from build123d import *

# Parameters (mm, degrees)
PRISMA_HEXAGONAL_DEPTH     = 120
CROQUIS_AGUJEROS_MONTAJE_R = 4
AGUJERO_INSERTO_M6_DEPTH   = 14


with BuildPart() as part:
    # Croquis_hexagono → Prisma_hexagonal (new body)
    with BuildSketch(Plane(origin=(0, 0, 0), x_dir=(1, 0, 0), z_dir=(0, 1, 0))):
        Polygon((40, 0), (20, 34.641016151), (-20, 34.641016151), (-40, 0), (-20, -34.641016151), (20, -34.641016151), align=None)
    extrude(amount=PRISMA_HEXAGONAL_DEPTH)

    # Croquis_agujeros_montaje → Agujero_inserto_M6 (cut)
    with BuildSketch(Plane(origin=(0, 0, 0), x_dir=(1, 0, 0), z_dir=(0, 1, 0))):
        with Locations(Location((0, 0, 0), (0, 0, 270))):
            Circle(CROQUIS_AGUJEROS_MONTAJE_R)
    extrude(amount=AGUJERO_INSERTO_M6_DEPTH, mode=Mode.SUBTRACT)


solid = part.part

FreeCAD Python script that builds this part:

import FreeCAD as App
import Part
import Sketcher
Q = App.Units.Quantity

doc = App.newDocument("Part")
body = doc.addObject("PartDesign::Body", "Body")

# Sketch on XZ plane
sketch1 = body.newObject("Sketcher::SketchObject", "Sketch")
sketch1.AttachmentSupport = (doc.getObject("XZ_Plane"), [""])
sketch1.MapMode = "FlatFace"
sketch1.addGeometry(Part.LineSegment(App.Vector(40, 0, 0), App.Vector(20, -35, 0)), False)
sketch1.addGeometry(Part.LineSegment(App.Vector(20, -35, 0), App.Vector(-20, -35, 0)), False)
sketch1.addGeometry(Part.LineSegment(App.Vector(-20, -35, 0), App.Vector(-40, 0, 0)), False)
sketch1.addGeometry(Part.LineSegment(App.Vector(-40, 0, 0), App.Vector(-20, 35, 0)), False)
sketch1.addGeometry(Part.LineSegment(App.Vector(-20, 35, 0), App.Vector(20, 35, 0)), False)
sketch1.addGeometry(Part.LineSegment(App.Vector(20, 35, 0), App.Vector(40, 0, 0)), False)
sketch1.addConstraint(Sketcher.Constraint("Coincident", 0, 2, 1, 1))
sketch1.addConstraint(Sketcher.Constraint("Coincident", 1, 2, 2, 1))
sketch1.addConstraint(Sketcher.Constraint("Coincident", 2, 2, 3, 1))
sketch1.addConstraint(Sketcher.Constraint("Coincident", 3, 2, 4, 1))
sketch1.addConstraint(Sketcher.Constraint("Coincident", 4, 2, 5, 1))
sketch1.addConstraint(Sketcher.Constraint("Coincident", 5, 2, 0, 1))
sketch1.addConstraint(Sketcher.Constraint("Horizontal", 1))
sketch1.addConstraint(Sketcher.Constraint("Horizontal", 4))
sketch1.addConstraint(Sketcher.Constraint("Symmetric", 0, 2, 3, 2, -1, 1))
sketch1.addConstraint(Sketcher.Constraint("Symmetric", 2, 2, 5, 2, -1, 1))
sketch1.addConstraint(Sketcher.Constraint("PointOnObject", 2, 2, -1))
sketch1.addConstraint(Sketcher.Constraint("Parallel", 2, 5))
sketch1.addConstraint(Sketcher.Constraint("Vertical", 1, 2, 3, 2))
sketch1.addConstraint(Sketcher.Constraint("DistanceX", 1, 2, 1, 1, 40.0))
sketch1.addConstraint(Sketcher.Constraint("Angle", 0, Q("-120 deg")))
sketch1.addConstraint(Sketcher.Constraint("Distance", 0, 40.0))
pad1 = body.newObject("PartDesign::Pad", "Pad")
pad1.Profile = sketch1
pad1.Length = 120
pad1.Reversed = True

# Sketch on XZ plane
sketch2 = body.newObject("Sketcher::SketchObject", "Sketch001")
sketch2.AttachmentSupport = (doc.getObject("XZ_Plane"), [""])
sketch2.MapMode = "FlatFace"
sketch2.addGeometry(Part.Circle(App.Vector(0, 0, 0), App.Vector(0, 0, 1), 4), False)
sketch2.addConstraint(Sketcher.Constraint("Coincident", 0, 3, -1, 1))
sketch2.addConstraint(Sketcher.Constraint("Diameter", 0, 8.0))
pocket1 = body.newObject("PartDesign::Pocket", "Pocket")
pocket1.Profile = sketch2
pocket1.Length = 14

doc.recompute()
